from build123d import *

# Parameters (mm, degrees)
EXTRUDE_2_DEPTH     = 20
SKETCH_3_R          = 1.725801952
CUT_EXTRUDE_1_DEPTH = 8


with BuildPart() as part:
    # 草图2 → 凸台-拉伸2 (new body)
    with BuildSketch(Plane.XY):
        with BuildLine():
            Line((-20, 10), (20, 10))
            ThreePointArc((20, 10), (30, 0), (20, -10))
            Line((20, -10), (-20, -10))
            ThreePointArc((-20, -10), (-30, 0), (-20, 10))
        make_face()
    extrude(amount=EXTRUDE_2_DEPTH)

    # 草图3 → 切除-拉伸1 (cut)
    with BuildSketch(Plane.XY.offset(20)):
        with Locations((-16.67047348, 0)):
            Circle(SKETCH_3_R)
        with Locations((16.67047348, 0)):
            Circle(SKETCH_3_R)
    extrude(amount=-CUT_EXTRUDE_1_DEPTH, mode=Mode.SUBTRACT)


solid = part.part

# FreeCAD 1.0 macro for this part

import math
import FreeCAD as App
import Part
import Sketcher

doc = App.newDocument("Part")
body = doc.addObject("PartDesign::Body", "Body")

sketch1 = doc.addObject("Sketcher::SketchObject", "Sketch")
body.addObject(sketch1)
sketch1.AttachmentSupport = (doc.XY_Plane, [""])
sketch1.MapMode = "FlatFace"
sketch1.addGeometry(Part.LineSegment(App.Vector(20, 10, 0), App.Vector(-20, 10, 0)), False)
sketch1.addGeometry(Part.ArcOfCircle(Part.Circle(App.Vector(-20, 0, 0), App.Vector(0, 0, 1), 10), math.radians(90), math.radians(270)), False)
sketch1.addGeometry(Part.LineSegment(App.Vector(-20, -10, 0), App.Vector(20, -10, 0)), False)
sketch1.addGeometry(Part.ArcOfCircle(Part.Circle(App.Vector(20, 0, 0), App.Vector(0, 0, 1), 10), math.radians(-90), math.radians(90)), False)
sketch1.addConstraint(Sketcher.Constraint("Tangent", 0, 2, 1, 1))
sketch1.addConstraint(Sketcher.Constraint("Tangent", 1, 2, 2, 1))
sketch1.addConstraint(Sketcher.Constraint("Tangent", 2, 2, 3, 1))
sketch1.addConstraint(Sketcher.Constraint("Tangent", 3, 2, 0, 1))
sketch1.addConstraint(Sketcher.Constraint("Horizontal", 0))
sketch1.addConstraint(Sketcher.Constraint("Horizontal", 2))
sketch1.addConstraint(Sketcher.Constraint("Symmetric", 1, 3, 3, 3, -1, 1))
sketch1.addConstraint(Sketcher.Constraint("Radius", 1, 10.0))
sketch1.addConstraint(Sketcher.Constraint("DistanceX", 0, 2, 0, 1, 40.0))
pad1 = doc.addObject("PartDesign::Pad", "Pad")
body.addObject(pad1)
pad1.Profile = sketch1
pad1.Length = 20

sketch2 = doc.addObject("Sketcher::SketchObject", "Sketch001")
body.addObject(sketch2)
sketch2.AttachmentSupport = (doc.XY_Plane, [""])
sketch2.MapMode = "FlatFace"
sketch2.AttachmentOffset = App.Placement(App.Vector(0, 0, 20), App.Rotation())
sketch2.addGeometry(Part.Circle(App.Vector(-16.7, 0, 0), App.Vector(0, 0, 1), 1.7), False)
sketch2.addGeometry(Part.Circle(App.Vector(16.7, 0, 0), App.Vector(0, 0, 1), 1.7), False)
sketch2.addConstraint(Sketcher.Constraint("Equal", 0, 1))
sketch2.addConstraint(Sketcher.Constraint("Symmetric", 0, 3, 1, 3, -1, 1))
sketch2.addConstraint(Sketcher.Constraint("PointOnObject", 0, 3, -1))
sketch2.addConstraint(Sketcher.Constraint("Diameter", 0, 3.451604))
sketch2.addConstraint(Sketcher.Constraint("DistanceX", 0, 3, -1, 1, 16.670473))
pocket1 = doc.addObject("PartDesign::Pocket", "Pocket")
body.addObject(pocket1)
pocket1.Profile = sketch2
pocket1.Length = 8

doc.recompute()
